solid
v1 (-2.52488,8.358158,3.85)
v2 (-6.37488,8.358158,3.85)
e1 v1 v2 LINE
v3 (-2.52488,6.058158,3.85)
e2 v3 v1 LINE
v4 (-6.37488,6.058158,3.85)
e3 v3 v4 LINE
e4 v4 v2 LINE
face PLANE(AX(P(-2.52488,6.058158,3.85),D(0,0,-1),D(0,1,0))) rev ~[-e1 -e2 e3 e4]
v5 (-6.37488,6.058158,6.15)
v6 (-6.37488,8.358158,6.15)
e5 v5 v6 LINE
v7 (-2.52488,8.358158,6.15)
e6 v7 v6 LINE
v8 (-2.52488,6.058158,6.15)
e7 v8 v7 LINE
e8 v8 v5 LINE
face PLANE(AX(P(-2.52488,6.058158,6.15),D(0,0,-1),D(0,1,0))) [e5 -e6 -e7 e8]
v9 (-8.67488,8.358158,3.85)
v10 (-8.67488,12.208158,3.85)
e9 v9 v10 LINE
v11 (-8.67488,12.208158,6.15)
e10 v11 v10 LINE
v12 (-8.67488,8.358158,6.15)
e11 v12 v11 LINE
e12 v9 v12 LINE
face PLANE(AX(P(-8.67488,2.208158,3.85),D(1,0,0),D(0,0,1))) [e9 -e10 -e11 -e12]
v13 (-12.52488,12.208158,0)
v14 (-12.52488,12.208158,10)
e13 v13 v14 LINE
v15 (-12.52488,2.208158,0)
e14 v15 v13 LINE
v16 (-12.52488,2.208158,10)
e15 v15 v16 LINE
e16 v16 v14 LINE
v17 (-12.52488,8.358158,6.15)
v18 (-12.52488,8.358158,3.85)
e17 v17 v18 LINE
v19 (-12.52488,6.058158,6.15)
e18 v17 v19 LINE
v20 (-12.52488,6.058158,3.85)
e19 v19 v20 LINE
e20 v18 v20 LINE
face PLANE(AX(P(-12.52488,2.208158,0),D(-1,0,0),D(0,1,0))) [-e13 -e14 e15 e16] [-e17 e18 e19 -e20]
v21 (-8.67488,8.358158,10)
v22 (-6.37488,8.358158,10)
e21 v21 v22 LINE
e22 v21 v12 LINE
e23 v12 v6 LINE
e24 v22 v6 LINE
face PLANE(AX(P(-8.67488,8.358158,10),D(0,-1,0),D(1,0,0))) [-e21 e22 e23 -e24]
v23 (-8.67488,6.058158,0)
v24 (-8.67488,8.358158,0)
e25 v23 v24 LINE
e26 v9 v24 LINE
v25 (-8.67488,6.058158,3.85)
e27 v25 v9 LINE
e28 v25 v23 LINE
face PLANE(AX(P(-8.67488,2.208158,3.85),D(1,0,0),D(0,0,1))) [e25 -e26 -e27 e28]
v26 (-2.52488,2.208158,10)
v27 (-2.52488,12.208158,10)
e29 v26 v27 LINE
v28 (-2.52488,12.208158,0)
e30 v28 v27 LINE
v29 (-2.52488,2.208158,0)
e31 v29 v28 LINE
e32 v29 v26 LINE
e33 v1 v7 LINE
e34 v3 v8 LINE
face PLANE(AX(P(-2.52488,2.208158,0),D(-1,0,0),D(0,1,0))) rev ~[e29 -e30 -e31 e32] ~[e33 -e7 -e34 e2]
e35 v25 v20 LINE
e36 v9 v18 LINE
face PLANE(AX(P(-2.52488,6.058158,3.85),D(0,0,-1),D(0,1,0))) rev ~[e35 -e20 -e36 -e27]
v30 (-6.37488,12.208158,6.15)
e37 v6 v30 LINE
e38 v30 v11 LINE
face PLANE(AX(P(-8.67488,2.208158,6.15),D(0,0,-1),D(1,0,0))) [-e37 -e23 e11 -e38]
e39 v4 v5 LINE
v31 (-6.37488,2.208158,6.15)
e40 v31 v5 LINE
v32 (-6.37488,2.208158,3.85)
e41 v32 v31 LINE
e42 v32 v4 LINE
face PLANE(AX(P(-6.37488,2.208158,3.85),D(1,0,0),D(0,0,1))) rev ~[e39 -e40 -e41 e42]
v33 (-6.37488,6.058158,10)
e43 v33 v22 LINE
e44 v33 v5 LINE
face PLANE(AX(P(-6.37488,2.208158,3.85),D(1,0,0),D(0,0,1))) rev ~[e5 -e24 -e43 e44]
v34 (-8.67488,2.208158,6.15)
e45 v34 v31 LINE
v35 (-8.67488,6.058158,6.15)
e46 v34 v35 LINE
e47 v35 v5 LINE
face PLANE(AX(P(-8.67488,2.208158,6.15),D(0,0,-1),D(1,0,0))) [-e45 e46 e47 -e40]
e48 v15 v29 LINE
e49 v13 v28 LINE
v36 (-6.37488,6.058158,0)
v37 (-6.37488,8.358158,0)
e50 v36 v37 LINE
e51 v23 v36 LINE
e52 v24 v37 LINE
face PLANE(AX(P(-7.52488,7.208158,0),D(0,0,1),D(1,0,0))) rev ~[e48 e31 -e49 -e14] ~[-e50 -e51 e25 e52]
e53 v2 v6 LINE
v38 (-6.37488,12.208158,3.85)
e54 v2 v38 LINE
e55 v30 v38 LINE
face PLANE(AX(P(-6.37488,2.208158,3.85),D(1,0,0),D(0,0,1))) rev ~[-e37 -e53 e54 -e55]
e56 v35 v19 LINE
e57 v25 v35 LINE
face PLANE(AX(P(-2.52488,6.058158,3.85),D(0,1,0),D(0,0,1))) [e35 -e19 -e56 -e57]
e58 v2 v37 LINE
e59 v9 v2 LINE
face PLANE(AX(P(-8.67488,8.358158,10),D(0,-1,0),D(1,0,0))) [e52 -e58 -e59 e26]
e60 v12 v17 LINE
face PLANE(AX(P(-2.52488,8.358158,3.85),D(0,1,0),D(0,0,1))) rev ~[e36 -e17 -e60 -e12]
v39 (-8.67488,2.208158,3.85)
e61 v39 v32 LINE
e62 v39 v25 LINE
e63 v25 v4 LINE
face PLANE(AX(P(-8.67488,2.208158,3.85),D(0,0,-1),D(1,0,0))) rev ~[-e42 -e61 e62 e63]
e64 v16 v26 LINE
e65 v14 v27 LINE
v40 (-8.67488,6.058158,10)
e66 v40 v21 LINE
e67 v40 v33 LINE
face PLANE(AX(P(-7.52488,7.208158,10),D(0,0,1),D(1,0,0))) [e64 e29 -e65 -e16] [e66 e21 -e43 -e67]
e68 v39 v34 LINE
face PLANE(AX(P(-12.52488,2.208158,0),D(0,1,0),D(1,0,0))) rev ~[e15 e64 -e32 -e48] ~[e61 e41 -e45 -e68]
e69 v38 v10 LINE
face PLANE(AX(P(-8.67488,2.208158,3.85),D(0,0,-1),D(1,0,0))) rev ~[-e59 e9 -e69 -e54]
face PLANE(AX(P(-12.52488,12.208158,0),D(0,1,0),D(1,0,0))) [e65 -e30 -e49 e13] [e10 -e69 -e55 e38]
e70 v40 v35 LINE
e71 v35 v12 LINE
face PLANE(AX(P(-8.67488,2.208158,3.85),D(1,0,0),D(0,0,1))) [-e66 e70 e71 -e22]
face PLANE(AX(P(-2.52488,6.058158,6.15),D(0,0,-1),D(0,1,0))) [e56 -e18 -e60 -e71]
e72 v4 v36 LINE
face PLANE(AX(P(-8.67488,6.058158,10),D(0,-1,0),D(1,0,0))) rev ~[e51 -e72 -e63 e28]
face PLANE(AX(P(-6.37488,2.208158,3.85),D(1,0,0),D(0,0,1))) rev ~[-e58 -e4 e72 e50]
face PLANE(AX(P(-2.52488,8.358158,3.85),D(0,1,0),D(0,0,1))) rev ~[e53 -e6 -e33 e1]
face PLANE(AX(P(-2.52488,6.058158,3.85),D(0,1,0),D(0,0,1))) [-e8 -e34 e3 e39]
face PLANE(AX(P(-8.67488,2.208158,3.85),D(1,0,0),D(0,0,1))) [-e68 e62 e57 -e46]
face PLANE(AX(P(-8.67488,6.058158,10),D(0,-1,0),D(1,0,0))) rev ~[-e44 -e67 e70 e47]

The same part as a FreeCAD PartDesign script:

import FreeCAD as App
import Part
import Sketcher
Q = App.Units.Quantity


def add_polygon(sketch, points):
    """Adds a closed chain of lines whose ends are joined by coincident constraints."""
    first, n = sketch.GeometryCount, len(points)
    for a, b in zip(points, points[1:] + points[:1]):
        sketch.addGeometry(Part.LineSegment(App.Vector(*a, 0), App.Vector(*b, 0)), False)
    for i in range(n):
        sketch.addConstraint(Sketcher.Constraint("Coincident", first + i, 2, first + (i + 1) % n, 1))

doc = App.newDocument("Part")
params = doc.addObject("Spreadsheet::Sheet", "Params")
for row, (alias, value) in enumerate([
    ("sketch1_width", "10 mm"),
    ("pad1_length", "10 mm"),
    ("sketch2_width", "2.3 mm"),
    ("sketch3_width", "2.3 mm"),
    ("sketch4_width", "2.3 mm"),
], start=1):
    params.set(f"A{row}", alias)
    params.set(f"B{row}", "=" + value)
    params.setAlias(f"B{row}", alias)

body = doc.addObject("PartDesign::Body", "Body")

# Sketch on XY plane
sketch1 = doc.addObject("Sketcher::SketchObject", "Sketch")
body.addObject(sketch1)
sketch1.AttachmentSupport = (doc.XY_Plane, [""])
sketch1.MapMode = "FlatFace"
add_polygon(sketch1, [(-12.52488, 12.208158), (-12.52488, 2.208158), (-2.52488, 2.208158), (-2.52488, 12.208158)])  # lines 0-3
sketch1.addConstraint([
    Sketcher.Constraint("Vertical", 0),
    Sketcher.Constraint("Horizontal", 1),
    Sketcher.Constraint("Vertical", 2),
    Sketcher.Constraint("Horizontal", 3),
    Sketcher.Constraint("Equal", 3, 0),
    Sketcher.Constraint("DistanceX", 1, 1, 1, 2, Q("10 mm")),
    Sketcher.Constraint("DistanceX", 0, 2, -1, 1, Q("12.52488 mm")),
    Sketcher.Constraint("DistanceY", -1, 1, 0, 2, Q("2.208158 mm")),
])
sketch1.setExpression("Constraints[9]", "Params.sketch1_width")
pad1 = doc.addObject("PartDesign::Pad", "Pad")
body.addObject(pad1)
pad1.Profile = sketch1
pad1.setExpression("Length", "Params.pad1_length")

# Sketch on XY plane
sketch2 = doc.addObject("Sketcher::SketchObject", "Sketch001")
body.addObject(sketch2)
sketch2.AttachmentSupport = (doc.XY_Plane, [""])
sketch2.MapMode = "FlatFace"
sketch2.AttachmentOffset = App.Placement(App.Vector(0, 0, 10), App.Rotation())
add_polygon(sketch2, [(-8.67488, 8.358158), (-8.67488, 6.058158), (-6.37488, 6.058158), (-6.37488, 8.358158)])  # lines 0-3
sketch2.addConstraint([
    Sketcher.Constraint("Vertical", 0),
    Sketcher.Constraint("Horizontal", 1),
    Sketcher.Constraint("Vertical", 2),
    Sketcher.Constraint("Horizontal", 3),
    Sketcher.Constraint("Equal", 3, 0),
    Sketcher.Constraint("DistanceX", 1, 1, 1, 2, Q("2.3 mm")),
    Sketcher.Constraint("DistanceX", 0, 2, -1, 1, Q("8.67488 mm")),
    Sketcher.Constraint("DistanceY", -1, 1, 0, 2, Q("6.058158 mm")),
])
sketch2.setExpression("Constraints[9]", "Params.sketch2_width")
pocket1 = doc.addObject("PartDesign::Pocket", "Pocket")
body.addObject(pocket1)
pocket1.Profile = sketch2
pocket1.Type = "ThroughAll"

# Sketch on XZ plane
sketch3 = doc.addObject("Sketcher::SketchObject", "Sketch002")
body.addObject(sketch3)
sketch3.AttachmentSupport = (doc.XZ_Plane, [""])
sketch3.MapMode = "FlatFace"
sketch3.AttachmentOffset = App.Placement(App.Vector(0, 0, -2.208158), App.Rotation())
add_polygon(sketch3, [(-8.67488, 6.15), (-8.67488, 3.85), (-6.37488, 3.85), (-6.37488, 6.15)])  # lines 0-3
sketch3.addConstraint([
    Sketcher.Constraint("Vertical", 0),
    Sketcher.Constraint("Horizontal", 1),
    Sketcher.Constraint("Vertical", 2),
    Sketcher.Constraint("Horizontal", 3),
    Sketcher.Constraint("Equal", 3, 0),
    Sketcher.Constraint("DistanceX", 1, 1, 1, 2, Q("2.3 mm")),
    Sketcher.Constraint("DistanceY", -1, 1, 0, 2, Q("3.85 mm")),
    Sketcher.Constraint("DistanceX", 0, 2, -1, 1, Q("8.67488 mm")),
])
sketch3.setExpression("Constraints[9]", "Params.sketch3_width")
pocket2 = doc.addObject("PartDesign::Pocket", "Pocket001")
body.addObject(pocket2)
pocket2.Profile = sketch3
pocket2.Type = "ThroughAll"

# Sketch on YZ plane
sketch4 = doc.addObject("Sketcher::SketchObject", "Sketch003")
body.addObject(sketch4)
sketch4.AttachmentSupport = (doc.YZ_Plane, [""])
sketch4.MapMode = "FlatFace"
sketch4.AttachmentOffset = App.Placement(App.Vector(0, 0, -2.52488), App.Rotation())
add_polygon(sketch4, [(6.058158, 6.15), (6.058158, 3.85), (8.358158, 3.85), (8.358158, 6.15)])  # lines 0-3
sketch4.addConstraint([
    Sketcher.Constraint("Vertical", 0),
    Sketcher.Constraint("Horizontal", 1),
    Sketcher.Constraint("Vertical", 2),
    Sketcher.Constraint("Horizontal", 3),
    Sketcher.Constraint("Equal", 3, 0),
    Sketcher.Constraint("DistanceX", 1, 1, 1, 2, Q("2.3 mm")),
    Sketcher.Constraint("DistanceY", -1, 1, 0, 2, Q("3.85 mm")),
    Sketcher.Constraint("DistanceX", -1, 1, 0, 2, Q("6.058158 mm")),
])
sketch4.setExpression("Constraints[9]", "Params.sketch4_width")
pocket3 = doc.addObject("PartDesign::Pocket", "Pocket002")
body.addObject(pocket3)
pocket3.Profile = sketch4
pocket3.Type = "ThroughAll"

doc.recompute()
